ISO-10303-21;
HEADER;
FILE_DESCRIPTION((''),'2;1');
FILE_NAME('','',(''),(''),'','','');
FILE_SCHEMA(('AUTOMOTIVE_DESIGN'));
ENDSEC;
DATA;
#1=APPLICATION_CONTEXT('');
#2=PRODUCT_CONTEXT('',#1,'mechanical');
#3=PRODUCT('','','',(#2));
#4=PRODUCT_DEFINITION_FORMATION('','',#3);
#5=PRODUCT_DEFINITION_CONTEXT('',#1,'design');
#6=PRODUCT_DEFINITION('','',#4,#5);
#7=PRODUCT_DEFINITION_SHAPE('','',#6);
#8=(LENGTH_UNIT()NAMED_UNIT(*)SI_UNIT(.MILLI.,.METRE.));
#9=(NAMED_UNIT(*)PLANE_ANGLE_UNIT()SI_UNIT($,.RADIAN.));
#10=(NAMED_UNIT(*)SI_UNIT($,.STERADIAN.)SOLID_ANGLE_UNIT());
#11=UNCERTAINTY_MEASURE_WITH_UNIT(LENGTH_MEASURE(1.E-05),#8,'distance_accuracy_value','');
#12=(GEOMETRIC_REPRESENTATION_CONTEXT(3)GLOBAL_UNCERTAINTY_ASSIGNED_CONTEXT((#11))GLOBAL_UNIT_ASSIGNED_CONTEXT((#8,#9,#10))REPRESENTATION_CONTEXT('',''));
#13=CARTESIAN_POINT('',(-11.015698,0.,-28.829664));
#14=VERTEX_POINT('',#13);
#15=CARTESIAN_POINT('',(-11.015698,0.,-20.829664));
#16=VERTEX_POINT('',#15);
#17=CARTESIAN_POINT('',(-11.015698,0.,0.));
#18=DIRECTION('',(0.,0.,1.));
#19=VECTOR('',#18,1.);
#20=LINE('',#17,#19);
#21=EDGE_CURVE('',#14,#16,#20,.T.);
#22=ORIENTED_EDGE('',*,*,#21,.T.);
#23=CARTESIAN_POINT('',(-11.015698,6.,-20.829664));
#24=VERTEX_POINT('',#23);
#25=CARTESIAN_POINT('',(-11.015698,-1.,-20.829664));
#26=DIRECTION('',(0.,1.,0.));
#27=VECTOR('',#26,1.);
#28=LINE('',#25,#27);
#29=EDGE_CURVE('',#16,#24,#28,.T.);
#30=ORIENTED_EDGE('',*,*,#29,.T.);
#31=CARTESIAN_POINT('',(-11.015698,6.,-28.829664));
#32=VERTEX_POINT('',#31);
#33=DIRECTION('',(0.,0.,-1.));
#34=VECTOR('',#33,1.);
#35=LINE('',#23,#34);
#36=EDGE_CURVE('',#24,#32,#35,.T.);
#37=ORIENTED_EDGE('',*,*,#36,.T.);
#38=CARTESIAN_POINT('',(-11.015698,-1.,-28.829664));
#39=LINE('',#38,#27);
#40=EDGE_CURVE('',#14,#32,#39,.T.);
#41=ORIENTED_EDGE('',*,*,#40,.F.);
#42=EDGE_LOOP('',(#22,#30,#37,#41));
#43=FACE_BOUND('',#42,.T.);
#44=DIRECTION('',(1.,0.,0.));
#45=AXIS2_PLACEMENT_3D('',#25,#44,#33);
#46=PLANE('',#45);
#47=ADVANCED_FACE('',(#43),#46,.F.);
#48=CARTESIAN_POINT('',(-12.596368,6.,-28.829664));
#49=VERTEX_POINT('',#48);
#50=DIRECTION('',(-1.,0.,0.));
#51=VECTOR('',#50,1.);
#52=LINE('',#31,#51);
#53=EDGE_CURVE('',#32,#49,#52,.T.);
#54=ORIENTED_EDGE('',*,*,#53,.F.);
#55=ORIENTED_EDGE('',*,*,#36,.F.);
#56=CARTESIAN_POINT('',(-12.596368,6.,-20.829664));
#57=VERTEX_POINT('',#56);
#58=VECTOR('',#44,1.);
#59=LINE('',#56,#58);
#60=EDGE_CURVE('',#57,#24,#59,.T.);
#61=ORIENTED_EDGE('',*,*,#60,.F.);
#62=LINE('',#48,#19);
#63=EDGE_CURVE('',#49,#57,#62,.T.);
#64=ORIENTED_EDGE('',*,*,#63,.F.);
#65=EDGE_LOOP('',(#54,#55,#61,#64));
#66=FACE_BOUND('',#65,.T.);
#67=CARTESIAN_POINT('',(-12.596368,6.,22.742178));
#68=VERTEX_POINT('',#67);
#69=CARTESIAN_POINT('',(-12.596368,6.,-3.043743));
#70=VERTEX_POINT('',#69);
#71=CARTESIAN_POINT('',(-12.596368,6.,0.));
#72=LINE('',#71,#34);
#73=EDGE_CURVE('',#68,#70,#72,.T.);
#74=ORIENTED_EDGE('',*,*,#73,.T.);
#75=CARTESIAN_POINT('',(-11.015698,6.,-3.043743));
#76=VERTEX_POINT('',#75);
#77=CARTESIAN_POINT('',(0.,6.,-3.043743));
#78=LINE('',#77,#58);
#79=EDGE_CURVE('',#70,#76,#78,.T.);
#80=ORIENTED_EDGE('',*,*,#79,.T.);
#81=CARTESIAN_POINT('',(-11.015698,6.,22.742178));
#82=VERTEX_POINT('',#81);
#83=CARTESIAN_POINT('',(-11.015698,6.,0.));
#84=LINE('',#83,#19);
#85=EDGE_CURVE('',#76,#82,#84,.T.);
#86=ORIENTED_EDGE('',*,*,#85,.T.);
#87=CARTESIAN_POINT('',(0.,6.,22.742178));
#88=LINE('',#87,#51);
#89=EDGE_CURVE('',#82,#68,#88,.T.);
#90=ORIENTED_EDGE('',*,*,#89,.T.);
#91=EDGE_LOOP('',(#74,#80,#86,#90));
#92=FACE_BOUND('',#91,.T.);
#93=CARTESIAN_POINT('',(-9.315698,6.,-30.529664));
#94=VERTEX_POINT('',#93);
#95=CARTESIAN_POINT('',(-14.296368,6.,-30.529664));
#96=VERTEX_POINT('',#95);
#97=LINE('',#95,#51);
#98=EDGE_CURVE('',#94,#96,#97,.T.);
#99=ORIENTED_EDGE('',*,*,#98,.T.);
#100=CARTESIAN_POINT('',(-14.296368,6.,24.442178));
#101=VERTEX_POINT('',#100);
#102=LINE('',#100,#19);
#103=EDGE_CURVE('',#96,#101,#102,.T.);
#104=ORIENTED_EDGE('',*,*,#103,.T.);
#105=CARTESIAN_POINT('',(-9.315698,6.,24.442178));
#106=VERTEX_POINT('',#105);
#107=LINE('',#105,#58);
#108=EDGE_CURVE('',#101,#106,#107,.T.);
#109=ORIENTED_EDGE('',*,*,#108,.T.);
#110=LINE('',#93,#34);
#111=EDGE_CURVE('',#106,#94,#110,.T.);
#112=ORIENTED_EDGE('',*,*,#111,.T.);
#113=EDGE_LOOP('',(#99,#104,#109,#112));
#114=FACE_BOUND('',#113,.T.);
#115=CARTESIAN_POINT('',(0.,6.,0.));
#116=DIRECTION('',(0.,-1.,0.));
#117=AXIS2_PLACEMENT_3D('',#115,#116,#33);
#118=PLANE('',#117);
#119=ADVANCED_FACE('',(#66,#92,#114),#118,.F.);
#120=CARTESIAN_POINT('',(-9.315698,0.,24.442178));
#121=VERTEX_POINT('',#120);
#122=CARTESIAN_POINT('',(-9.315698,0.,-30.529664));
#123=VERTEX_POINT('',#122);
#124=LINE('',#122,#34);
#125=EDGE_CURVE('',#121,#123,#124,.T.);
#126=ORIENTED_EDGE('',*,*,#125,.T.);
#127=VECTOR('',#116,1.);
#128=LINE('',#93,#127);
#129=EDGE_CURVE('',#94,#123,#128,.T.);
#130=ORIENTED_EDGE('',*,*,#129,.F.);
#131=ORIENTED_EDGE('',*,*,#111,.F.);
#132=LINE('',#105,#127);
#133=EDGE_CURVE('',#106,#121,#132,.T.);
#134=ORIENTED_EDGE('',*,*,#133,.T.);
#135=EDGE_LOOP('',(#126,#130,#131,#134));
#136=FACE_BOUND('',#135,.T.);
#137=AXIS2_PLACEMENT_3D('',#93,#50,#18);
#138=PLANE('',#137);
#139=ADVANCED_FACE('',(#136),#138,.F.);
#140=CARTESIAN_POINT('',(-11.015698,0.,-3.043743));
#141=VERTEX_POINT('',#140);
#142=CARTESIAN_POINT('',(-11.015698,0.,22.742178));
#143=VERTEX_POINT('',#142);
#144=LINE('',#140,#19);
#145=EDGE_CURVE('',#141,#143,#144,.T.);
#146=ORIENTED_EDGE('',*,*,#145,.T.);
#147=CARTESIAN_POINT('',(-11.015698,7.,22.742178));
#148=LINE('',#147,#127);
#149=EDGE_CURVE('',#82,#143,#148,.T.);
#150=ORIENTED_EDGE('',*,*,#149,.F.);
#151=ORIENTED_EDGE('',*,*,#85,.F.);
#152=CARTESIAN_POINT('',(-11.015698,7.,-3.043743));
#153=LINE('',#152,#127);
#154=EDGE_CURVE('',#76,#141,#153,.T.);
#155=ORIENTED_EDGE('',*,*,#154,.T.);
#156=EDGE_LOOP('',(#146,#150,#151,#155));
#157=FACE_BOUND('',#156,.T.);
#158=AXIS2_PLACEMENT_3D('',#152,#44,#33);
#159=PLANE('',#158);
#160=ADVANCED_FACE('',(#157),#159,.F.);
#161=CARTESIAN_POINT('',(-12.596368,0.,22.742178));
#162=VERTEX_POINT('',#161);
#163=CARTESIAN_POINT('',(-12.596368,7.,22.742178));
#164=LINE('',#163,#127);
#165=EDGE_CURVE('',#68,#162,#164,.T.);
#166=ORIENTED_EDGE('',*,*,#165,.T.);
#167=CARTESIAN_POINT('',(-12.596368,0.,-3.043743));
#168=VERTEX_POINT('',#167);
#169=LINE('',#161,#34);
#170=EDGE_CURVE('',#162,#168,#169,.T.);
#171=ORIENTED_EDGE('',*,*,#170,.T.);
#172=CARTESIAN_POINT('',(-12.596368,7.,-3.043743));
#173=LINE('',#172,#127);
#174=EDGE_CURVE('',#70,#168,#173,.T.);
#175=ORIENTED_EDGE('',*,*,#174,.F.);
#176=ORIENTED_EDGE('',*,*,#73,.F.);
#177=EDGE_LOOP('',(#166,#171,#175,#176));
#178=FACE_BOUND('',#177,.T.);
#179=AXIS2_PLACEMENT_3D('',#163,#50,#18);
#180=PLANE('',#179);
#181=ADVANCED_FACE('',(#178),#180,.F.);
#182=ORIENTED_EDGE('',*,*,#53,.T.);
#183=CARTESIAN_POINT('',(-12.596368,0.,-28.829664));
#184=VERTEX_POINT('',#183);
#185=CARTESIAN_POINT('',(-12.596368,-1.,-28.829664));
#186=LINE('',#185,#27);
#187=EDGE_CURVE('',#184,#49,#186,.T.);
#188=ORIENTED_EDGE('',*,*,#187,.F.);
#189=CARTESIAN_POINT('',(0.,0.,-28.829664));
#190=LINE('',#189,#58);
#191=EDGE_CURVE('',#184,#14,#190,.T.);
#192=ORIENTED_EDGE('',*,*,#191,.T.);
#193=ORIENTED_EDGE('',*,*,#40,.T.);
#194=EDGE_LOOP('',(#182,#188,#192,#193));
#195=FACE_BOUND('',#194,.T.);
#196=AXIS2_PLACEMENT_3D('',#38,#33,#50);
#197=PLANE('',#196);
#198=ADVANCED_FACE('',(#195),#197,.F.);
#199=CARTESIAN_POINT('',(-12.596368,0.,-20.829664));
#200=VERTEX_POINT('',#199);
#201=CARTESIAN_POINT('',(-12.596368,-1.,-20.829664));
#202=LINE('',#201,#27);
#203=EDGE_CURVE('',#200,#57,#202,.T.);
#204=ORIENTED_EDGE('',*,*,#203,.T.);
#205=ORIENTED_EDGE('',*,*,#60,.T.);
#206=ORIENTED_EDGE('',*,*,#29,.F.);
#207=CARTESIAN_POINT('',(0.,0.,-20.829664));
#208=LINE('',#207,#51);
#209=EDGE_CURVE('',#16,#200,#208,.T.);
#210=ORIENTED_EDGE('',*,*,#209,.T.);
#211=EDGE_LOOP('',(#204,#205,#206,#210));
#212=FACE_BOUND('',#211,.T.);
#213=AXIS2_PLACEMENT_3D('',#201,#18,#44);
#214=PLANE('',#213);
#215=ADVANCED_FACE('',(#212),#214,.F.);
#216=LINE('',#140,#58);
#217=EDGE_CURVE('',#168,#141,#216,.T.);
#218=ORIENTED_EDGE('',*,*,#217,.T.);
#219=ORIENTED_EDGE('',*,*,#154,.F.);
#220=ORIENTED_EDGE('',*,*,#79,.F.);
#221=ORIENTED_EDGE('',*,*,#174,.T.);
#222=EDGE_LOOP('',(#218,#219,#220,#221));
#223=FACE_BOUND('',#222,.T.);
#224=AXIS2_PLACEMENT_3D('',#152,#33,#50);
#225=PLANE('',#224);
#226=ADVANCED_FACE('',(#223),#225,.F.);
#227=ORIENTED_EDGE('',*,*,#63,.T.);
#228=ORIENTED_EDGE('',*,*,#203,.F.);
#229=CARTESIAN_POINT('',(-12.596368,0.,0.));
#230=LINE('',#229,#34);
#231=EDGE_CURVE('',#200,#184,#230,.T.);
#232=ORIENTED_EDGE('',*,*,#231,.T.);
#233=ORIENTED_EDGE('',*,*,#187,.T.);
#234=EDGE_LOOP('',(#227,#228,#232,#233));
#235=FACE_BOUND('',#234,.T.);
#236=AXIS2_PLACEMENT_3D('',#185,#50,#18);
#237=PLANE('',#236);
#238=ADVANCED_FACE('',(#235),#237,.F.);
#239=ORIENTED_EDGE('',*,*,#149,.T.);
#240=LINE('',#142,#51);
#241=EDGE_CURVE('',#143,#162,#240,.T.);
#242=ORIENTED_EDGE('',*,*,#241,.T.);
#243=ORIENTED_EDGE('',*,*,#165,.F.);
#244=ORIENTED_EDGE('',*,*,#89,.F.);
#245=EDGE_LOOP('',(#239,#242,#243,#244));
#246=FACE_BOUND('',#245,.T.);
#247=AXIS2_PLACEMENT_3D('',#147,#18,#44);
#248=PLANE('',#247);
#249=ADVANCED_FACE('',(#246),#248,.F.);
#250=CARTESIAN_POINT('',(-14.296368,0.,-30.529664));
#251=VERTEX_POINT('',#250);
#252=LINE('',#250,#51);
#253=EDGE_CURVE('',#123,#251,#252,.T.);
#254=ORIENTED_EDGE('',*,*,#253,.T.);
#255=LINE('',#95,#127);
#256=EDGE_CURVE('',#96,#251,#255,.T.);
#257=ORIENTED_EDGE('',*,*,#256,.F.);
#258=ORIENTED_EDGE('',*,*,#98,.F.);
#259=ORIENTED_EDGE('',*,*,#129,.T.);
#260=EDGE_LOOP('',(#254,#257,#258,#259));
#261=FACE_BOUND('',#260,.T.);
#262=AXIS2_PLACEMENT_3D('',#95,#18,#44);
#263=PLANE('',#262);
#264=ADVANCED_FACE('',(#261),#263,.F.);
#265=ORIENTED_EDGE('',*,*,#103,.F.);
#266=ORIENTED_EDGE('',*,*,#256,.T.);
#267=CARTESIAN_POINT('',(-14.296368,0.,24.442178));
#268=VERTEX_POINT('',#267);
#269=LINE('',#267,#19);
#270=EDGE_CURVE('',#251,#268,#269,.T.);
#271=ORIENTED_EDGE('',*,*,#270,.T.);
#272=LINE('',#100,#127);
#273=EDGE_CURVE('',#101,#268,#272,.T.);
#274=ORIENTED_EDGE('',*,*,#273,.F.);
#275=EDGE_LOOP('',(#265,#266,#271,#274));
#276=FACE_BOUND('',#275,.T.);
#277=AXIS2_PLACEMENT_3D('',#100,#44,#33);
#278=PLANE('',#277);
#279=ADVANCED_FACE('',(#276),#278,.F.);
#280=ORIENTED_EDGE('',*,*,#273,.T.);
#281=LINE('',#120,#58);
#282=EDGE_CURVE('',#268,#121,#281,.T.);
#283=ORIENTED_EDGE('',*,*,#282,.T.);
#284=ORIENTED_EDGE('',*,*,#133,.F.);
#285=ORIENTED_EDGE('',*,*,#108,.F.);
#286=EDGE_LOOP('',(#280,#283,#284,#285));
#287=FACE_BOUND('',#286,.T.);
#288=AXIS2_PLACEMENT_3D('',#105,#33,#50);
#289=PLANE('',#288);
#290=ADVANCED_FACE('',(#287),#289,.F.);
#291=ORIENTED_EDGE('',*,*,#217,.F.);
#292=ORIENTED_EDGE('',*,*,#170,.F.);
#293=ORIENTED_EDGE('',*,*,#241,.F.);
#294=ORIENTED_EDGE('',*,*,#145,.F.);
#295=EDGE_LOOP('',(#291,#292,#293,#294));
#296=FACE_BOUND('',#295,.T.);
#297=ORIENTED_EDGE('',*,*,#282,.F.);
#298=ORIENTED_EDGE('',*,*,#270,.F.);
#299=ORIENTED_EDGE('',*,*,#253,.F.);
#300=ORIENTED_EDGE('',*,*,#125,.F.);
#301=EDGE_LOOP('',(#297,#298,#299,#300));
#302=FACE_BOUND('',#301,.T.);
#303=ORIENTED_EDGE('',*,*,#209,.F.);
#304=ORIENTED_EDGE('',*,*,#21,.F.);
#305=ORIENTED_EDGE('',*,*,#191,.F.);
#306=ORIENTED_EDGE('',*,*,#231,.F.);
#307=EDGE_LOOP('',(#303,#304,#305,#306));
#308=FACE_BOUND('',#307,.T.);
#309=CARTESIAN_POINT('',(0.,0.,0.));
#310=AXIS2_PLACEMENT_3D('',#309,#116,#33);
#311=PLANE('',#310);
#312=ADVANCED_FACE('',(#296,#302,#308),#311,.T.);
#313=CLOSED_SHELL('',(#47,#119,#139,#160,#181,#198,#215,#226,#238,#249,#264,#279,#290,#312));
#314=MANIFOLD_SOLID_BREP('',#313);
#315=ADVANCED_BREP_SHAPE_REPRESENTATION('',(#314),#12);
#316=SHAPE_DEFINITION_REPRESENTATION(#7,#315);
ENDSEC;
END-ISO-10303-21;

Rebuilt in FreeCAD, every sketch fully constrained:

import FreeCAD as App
import Part
import Sketcher
Q = App.Units.Quantity

doc = App.newDocument("Part")
params = doc.addObject("Spreadsheet::Sheet", "Params")
for row, (alias, value) in enumerate([
    ("pad1_length", "6 mm"),
    ("sketch2_height", "8 mm"),
    ("pocket1_length", "7 mm"),
    ("pocket2_length", "7 mm"),
], start=1):
    params.set(f"A{row}", alias)
    params.set(f"B{row}", "=" + value)
    params.setAlias(f"B{row}", alias)

body = doc.addObject("PartDesign::Body", "Body")

# Sketch on XZ plane
sketch1 = body.newObject("Sketcher::SketchObject", "Sketch")
sketch1.AttachmentSupport = (doc.getObject("XZ_Plane"), [""])
sketch1.MapMode = "FlatFace"
sketch1.addGeometry(Part.LineSegment(App.Vector(-14.3, -30.5, 0), App.Vector(-14.3, 24.4, 0)), False)
sketch1.addGeometry(Part.LineSegment(App.Vector(-14.3, 24.4, 0), App.Vector(-9.3, 24.4, 0)), False)
sketch1.addGeometry(Part.LineSegment(App.Vector(-9.3, 24.4, 0), App.Vector(-9.3, -30.5, 0)), False)
sketch1.addGeometry(Part.LineSegment(App.Vector(-9.3, -30.5, 0), App.Vector(-14.3, -30.5, 0)), False)
sketch1.addConstraint(Sketcher.Constraint("Coincident", 0, 2, 1, 1))
sketch1.addConstraint(Sketcher.Constraint("Coincident", 1, 2, 2, 1))
sketch1.addConstraint(Sketcher.Constraint("Coincident", 2, 2, 3, 1))
sketch1.addConstraint(Sketcher.Constraint("Coincident", 3, 2, 0, 1))
sketch1.addConstraint(Sketcher.Constraint("Vertical", 0))
sketch1.addConstraint(Sketcher.Constraint("Horizontal", 1))
sketch1.addConstraint(Sketcher.Constraint("Vertical", 2))
sketch1.addConstraint(Sketcher.Constraint("Horizontal", 3))
sketch1.addConstraint(Sketcher.Constraint("DistanceX", 1, 1, 1, 2, Q("4.98067 mm")))
sketch1.addConstraint(Sketcher.Constraint("DistanceX", 1, 2, -1, 1, Q("9.315698 mm")))
sketch1.addConstraint(Sketcher.Constraint("DistanceY", 0, 1, 0, 2, Q("54.971842 mm")))
sketch1.addConstraint(Sketcher.Constraint("DistanceY", -1, 1, 0, 2, Q("24.442178 mm")))
pad1 = body.newObject("PartDesign::Pad", "Pad")
pad1.Profile = sketch1
pad1.setExpression("Length", "Params.pad1_length")
pad1.Reversed = True

# Sketch on XZ plane
sketch2 = body.newObject("Sketcher::SketchObject", "Sketch001")
sketch2.AttachmentSupport = (doc.getObject("XZ_Plane"), [""])
sketch2.MapMode = "FlatFace"
sketch2.AttachmentOffset = App.Placement(App.Vector(0, 0, -6), App.Rotation())
sketch2.addGeometry(Part.LineSegment(App.Vector(-12.6, -28.8, 0), App.Vector(-12.6, -20.8, 0)), False)
sketch2.addGeometry(Part.LineSegment(App.Vector(-12.6, -20.8, 0), App.Vector(-11, -20.8, 0)), False)
sketch2.addGeometry(Part.LineSegment(App.Vector(-11, -20.8, 0), App.Vector(-11, -28.8, 0)), False)
sketch2.addGeometry(Part.LineSegment(App.Vector(-11, -28.8, 0), App.Vector(-12.6, -28.8, 0)), False)
sketch2.addConstraint(Sketcher.Constraint("Coincident", 0, 2, 1, 1))
sketch2.addConstraint(Sketcher.Constraint("Coincident", 1, 2, 2, 1))
sketch2.addConstraint(Sketcher.Constraint("Coincident", 2, 2, 3, 1))
sketch2.addConstraint(Sketcher.Constraint("Coincident", 3, 2, 0, 1))
sketch2.addConstraint(Sketcher.Constraint("Vertical", 0))
sketch2.addConstraint(Sketcher.Constraint("Horizontal", 1))
sketch2.addConstraint(Sketcher.Constraint("Vertical", 2))
sketch2.addConstraint(Sketcher.Constraint("Horizontal", 3))
sketch2.addConstraint(Sketcher.Constraint("DistanceY", 0, 1, 0, 2, Q("8 mm")))
sketch2.addConstraint(Sketcher.Constraint("DistanceX", 1, 1, 1, 2, Q("1.58067 mm")))
sketch2.addConstraint(Sketcher.Constraint("DistanceX", 1, 2, -1, 1, Q("11.015698 mm")))
sketch2.addConstraint(Sketcher.Constraint("DistanceY", 0, 2, -1, 1, Q("20.829664 mm")))
sketch2.setExpression("Constraints[8]", "Params.sketch2_height")
pocket1 = body.newObject("PartDesign::Pocket", "Pocket")
pocket1.Profile = sketch2
pocket1.setExpression("Length", "Params.pocket1_length")
pocket1.Reversed = True

# Sketch on XZ plane
sketch3 = body.newObject("Sketcher::SketchObject", "Sketch002")
sketch3.AttachmentSupport = (doc.getObject("XZ_Plane"), [""])
sketch3.MapMode = "FlatFace"
sketch3.addGeometry(Part.LineSegment(App.Vector(-12.6, 22.7, 0), App.Vector(-12.6, -3, 0)), False)
sketch3.addGeometry(Part.LineSegment(App.Vector(-12.6, -3, 0), App.Vector(-11, -3, 0)), False)
sketch3.addGeometry(Part.LineSegment(App.Vector(-11, -3, 0), App.Vector(-11, 22.7, 0)), False)
sketch3.addGeometry(Part.LineSegment(App.Vector(-11, 22.7, 0), App.Vector(-12.6, 22.7, 0)), False)
sketch3.addConstraint(Sketcher.Constraint("Coincident", 0, 2, 1, 1))
sketch3.addConstraint(Sketcher.Constraint("Coincident", 1, 2, 2, 1))
sketch3.addConstraint(Sketcher.Constraint("Coincident", 2, 2, 3, 1))
sketch3.addConstraint(Sketcher.Constraint("Coincident", 3, 2, 0, 1))
sketch3.addConstraint(Sketcher.Constraint("Vertical", 0))
sketch3.addConstraint(Sketcher.Constraint("Horizontal", 1))
sketch3.addConstraint(Sketcher.Constraint("Vertical", 2))
sketch3.addConstraint(Sketcher.Constraint("Horizontal", 3))
sketch3.addConstraint(Sketcher.Constraint("DistanceX", 1, 1, 1, 2, Q("1.58067 mm")))
sketch3.addConstraint(Sketcher.Constraint("DistanceY", 0, 2, 0, 1, Q("25.785921 mm")))
sketch3.addConstraint(Sketcher.Constraint("DistanceX", 1, 2, -1, 1, Q("11.015698 mm")))
sketch3.addConstraint(Sketcher.Constraint("DistanceY", -1, 1, 2, 2, Q("22.742178 mm")))
pocket2 = body.newObject("PartDesign::Pocket", "Pocket001")
pocket2.Profile = sketch3
pocket2.setExpression("Length", "Params.pocket2_length")

doc.recompute()
